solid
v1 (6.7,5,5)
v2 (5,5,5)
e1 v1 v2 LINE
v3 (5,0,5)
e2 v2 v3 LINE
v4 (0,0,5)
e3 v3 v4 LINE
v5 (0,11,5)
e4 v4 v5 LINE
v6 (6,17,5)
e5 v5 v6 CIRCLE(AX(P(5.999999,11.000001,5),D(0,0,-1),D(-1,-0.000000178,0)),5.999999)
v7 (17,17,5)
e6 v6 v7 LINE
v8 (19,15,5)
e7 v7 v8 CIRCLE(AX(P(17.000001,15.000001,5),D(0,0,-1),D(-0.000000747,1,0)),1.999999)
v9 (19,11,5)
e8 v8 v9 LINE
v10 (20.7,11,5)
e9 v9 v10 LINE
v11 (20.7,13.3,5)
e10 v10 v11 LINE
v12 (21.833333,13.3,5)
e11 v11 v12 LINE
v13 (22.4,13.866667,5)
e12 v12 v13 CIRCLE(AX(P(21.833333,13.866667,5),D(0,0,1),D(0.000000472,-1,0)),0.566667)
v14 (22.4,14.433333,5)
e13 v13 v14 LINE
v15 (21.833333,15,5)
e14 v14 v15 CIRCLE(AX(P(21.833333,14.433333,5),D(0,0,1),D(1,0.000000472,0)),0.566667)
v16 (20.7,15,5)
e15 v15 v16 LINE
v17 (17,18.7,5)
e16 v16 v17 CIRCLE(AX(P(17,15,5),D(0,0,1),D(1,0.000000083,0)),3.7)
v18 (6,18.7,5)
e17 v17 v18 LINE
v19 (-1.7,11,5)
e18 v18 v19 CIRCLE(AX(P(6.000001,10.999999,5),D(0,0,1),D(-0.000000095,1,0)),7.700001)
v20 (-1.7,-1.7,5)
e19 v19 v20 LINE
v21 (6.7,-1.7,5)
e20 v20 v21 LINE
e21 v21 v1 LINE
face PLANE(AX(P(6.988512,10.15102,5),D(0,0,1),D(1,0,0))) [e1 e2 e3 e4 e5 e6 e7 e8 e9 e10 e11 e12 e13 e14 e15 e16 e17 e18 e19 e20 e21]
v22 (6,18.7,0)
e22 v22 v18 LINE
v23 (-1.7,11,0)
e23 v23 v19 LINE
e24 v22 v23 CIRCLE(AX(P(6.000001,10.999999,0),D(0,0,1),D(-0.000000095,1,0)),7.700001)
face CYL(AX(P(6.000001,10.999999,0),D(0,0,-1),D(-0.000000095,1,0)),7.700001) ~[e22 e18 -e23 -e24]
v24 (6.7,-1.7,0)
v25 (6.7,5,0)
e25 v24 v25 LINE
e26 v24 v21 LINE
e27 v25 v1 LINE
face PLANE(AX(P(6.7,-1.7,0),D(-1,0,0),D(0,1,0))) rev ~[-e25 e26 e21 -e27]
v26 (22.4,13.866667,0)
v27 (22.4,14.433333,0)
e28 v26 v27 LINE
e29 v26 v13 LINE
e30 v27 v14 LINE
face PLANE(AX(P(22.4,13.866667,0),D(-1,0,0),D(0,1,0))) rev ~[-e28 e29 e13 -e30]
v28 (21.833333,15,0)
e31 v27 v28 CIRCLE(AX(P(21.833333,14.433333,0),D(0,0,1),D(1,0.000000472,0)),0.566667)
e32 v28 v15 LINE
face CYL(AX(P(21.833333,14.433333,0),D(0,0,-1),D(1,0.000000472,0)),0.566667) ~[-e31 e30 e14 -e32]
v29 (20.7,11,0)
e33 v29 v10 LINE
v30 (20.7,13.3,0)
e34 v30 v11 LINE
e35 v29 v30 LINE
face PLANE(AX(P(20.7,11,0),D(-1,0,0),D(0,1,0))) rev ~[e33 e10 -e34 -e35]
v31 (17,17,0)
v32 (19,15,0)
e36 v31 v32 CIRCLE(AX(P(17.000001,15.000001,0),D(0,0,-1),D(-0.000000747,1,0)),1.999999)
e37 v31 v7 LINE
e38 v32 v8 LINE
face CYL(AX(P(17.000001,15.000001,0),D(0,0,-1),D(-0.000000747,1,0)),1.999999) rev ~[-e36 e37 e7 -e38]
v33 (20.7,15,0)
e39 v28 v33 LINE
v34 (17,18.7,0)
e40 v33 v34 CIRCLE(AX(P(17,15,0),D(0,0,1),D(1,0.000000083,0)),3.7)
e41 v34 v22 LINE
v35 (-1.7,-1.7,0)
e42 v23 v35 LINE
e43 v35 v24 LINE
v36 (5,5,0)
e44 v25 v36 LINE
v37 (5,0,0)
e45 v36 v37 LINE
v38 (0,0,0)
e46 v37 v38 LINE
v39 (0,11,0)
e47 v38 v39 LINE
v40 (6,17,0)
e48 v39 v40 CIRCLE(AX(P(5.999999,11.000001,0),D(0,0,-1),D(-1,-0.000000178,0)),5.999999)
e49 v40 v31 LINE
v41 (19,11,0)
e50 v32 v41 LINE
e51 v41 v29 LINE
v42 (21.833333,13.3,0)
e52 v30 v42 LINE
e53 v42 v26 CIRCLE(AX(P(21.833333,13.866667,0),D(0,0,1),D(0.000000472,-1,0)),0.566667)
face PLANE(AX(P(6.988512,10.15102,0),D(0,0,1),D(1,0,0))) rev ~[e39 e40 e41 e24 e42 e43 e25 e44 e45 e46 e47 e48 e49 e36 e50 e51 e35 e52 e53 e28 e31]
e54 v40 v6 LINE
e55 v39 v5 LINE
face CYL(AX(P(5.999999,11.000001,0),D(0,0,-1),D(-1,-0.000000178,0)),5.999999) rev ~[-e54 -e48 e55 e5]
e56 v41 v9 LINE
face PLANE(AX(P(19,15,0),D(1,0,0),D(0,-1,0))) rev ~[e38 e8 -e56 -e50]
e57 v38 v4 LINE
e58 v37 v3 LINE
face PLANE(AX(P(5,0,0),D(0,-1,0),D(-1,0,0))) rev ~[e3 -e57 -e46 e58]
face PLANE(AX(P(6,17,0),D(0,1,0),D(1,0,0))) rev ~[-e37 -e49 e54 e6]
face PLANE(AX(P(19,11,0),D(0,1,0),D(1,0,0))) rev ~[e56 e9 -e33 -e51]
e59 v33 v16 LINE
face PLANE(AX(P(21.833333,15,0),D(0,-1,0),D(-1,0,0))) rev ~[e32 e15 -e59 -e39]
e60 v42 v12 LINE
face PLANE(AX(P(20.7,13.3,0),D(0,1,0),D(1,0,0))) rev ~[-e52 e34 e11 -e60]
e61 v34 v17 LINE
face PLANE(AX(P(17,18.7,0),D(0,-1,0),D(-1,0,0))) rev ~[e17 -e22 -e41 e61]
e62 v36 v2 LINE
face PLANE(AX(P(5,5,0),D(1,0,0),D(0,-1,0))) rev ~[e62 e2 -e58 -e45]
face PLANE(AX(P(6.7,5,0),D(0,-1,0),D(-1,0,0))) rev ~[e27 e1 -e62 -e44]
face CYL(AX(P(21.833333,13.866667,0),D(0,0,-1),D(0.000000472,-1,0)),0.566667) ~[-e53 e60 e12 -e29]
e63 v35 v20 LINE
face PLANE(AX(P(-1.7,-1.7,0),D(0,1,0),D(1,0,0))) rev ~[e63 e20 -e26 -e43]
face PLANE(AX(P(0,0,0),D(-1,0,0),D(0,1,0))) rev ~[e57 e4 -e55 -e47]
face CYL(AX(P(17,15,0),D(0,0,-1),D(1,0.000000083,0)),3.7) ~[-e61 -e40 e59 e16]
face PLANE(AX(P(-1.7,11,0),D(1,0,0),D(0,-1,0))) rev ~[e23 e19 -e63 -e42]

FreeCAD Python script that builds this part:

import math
import FreeCAD as App
import Part
import Sketcher

doc = App.newDocument("Part")
body = doc.addObject("PartDesign::Body", "Body")

sketch1 = body.newObject("Sketcher::SketchObject", "Sketch")
sketch1.AttachmentSupport = (doc.getObject("XY_Plane"), [""])
sketch1.MapMode = "FlatFace"
sketch1.addGeometry([
    Part.LineSegment(App.Vector(5, 0, 0), App.Vector(0, 0, 0)),
    Part.LineSegment(App.Vector(0, 0, 0), App.Vector(0, 11, 0)),
    Part.ArcOfCircle(Part.Circle(App.Vector(6, 11, 0), App.Vector(0, 0, 1), 6), math.radians(90), math.radians(180)),
    Part.LineSegment(App.Vector(6, 17, 0), App.Vector(17, 17, 0)),
    Part.ArcOfCircle(Part.Circle(App.Vector(17, 15, 0), App.Vector(0, 0, 1), 2), math.radians(0), math.radians(90)),
    Part.LineSegment(App.Vector(19, 15, 0), App.Vector(19, 11, 0)),
    Part.LineSegment(App.Vector(19, 11, 0), App.Vector(20.7, 11, 0)),
    Part.LineSegment(App.Vector(20.7, 11, 0), App.Vector(20.7, 13.3, 0)),
    Part.LineSegment(App.Vector(20.7, 13.3, 0), App.Vector(21.8, 13.3, 0)),
    Part.ArcOfCircle(Part.Circle(App.Vector(21.8, 13.9, 0), App.Vector(0, 0, 1), 0.6), math.radians(-90), math.radians(0)),
    Part.LineSegment(App.Vector(22.4, 13.9, 0), App.Vector(22.4, 14.4, 0)),
    Part.ArcOfCircle(Part.Circle(App.Vector(21.8, 14.4, 0), App.Vector(0, 0, 1), 0.6), math.radians(0), math.radians(90)),
    Part.LineSegment(App.Vector(21.8, 15, 0), App.Vector(20.7, 15, 0)),
    Part.ArcOfCircle(Part.Circle(App.Vector(17, 15, 0), App.Vector(0, 0, 1), 3.7), math.radians(0), math.radians(90)),
    Part.LineSegment(App.Vector(17, 18.7, 0), App.Vector(6, 18.7, 0)),
    Part.ArcOfCircle(Part.Circle(App.Vector(6, 11, 0), App.Vector(0, 0, 1), 7.7), math.radians(90), math.radians(180)),
    Part.LineSegment(App.Vector(-1.7, 11, 0), App.Vector(-1.7, -1.7, 0)),
    Part.LineSegment(App.Vector(-1.7, -1.7, 0), App.Vector(6.7, -1.7, 0)),
    Part.LineSegment(App.Vector(6.7, -1.7, 0), App.Vector(6.7, 5, 0)),
    Part.LineSegment(App.Vector(6.7, 5, 0), App.Vector(5, 5, 0)),
    Part.LineSegment(App.Vector(5, 5, 0), App.Vector(5, 0, 0)),
], False)
sketch1.addConstraint([
    Sketcher.Constraint("Coincident", 0, 2, 1, 1),
    Sketcher.Constraint("Tangent", 1, 2, 2, 2),
    Sketcher.Constraint("Tangent", 2, 1, 3, 1),
    Sketcher.Constraint("Tangent", 3, 2, 4, 2),
    Sketcher.Constraint("Tangent", 4, 1, 5, 1),
    Sketcher.Constraint("Coincident", 5, 2, 6, 1),
    Sketcher.Constraint("Coincident", 6, 2, 7, 1),
    Sketcher.Constraint("Coincident", 7, 2, 8, 1),
    Sketcher.Constraint("Tangent", 8, 2, 9, 1),
    Sketcher.Constraint("Tangent", 9, 2, 10, 1),
    Sketcher.Constraint("Tangent", 10, 2, 11, 1),
    Sketcher.Constraint("Tangent", 11, 2, 12, 1),
    Sketcher.Constraint("Coincident", 12, 2, 13, 1),
    Sketcher.Constraint("Tangent", 13, 2, 14, 1),
    Sketcher.Constraint("Tangent", 14, 2, 15, 1),
    Sketcher.Constraint("Tangent", 15, 2, 16, 1),
    Sketcher.Constraint("Coincident", 16, 2, 17, 1),
    Sketcher.Constraint("Coincident", 17, 2, 18, 1),
    Sketcher.Constraint("Coincident", 18, 2, 19, 1),
    Sketcher.Constraint("Coincident", 19, 2, 20, 1),
    Sketcher.Constraint("Coincident", 20, 2, 0, 1),
    Sketcher.Constraint("Horizontal", 0),
    Sketcher.Constraint("Vertical", 1),
    Sketcher.Constraint("Horizontal", 3),
    Sketcher.Constraint("Vertical", 5),
    Sketcher.Constraint("Horizontal", 6),
    Sketcher.Constraint("Vertical", 7),
    Sketcher.Constraint("Horizontal", 8),
    Sketcher.Constraint("Vertical", 10),
    Sketcher.Constraint("Horizontal", 12),
    Sketcher.Constraint("Horizontal", 14),
    Sketcher.Constraint("Vertical", 16),
    Sketcher.Constraint("Horizontal", 17),
    Sketcher.Constraint("Vertical", 18),
    Sketcher.Constraint("Horizontal", 19),
    Sketcher.Constraint("Vertical", 20),
    Sketcher.Constraint("Coincident", 0, 2, -1, 1),
    Sketcher.Constraint("Coincident", 13, 3, 4, 3),
    Sketcher.Constraint("Coincident", 15, 3, 2, 3),
    Sketcher.Constraint("Equal", 9, 11),
    Sketcher.Constraint("Horizontal", 1, 2, 5, 2),
    Sketcher.Constraint("Horizontal", 4, 1, 11, 2),
    Sketcher.Constraint("Vertical", 7, 2, 12, 2),
    Sketcher.Constraint("Equal", 6, 19),
    Sketcher.Constraint("Equal", 14, 1),
    Sketcher.Constraint("Equal", 0, 20),
    Sketcher.Constraint("Radius", 2, 5.999999),
    Sketcher.Constraint("Radius", 4, 1.999999),
    Sketcher.Constraint("Radius", 13, 3.7),
    Sketcher.Constraint("DistanceX", 0, 2, 0, 1, 5.0),
    Sketcher.Constraint("DistanceX", 3, 1, 3, 2, 11.0),
    Sketcher.Constraint("DistanceY", 7, 1, 7, 2, 2.3),
    Sketcher.Constraint("DistanceY", 16, 2, 16, 1, 12.7),
    Sketcher.Constraint("DistanceX", -1, 1, 9, 2, 22.4),
    Sketcher.Constraint("Radius", 9, 0.566667),
])
pad1 = body.newObject("PartDesign::Pad", "Pad")
pad1.Profile = sketch1
pad1.Length = 5

doc.recompute()
